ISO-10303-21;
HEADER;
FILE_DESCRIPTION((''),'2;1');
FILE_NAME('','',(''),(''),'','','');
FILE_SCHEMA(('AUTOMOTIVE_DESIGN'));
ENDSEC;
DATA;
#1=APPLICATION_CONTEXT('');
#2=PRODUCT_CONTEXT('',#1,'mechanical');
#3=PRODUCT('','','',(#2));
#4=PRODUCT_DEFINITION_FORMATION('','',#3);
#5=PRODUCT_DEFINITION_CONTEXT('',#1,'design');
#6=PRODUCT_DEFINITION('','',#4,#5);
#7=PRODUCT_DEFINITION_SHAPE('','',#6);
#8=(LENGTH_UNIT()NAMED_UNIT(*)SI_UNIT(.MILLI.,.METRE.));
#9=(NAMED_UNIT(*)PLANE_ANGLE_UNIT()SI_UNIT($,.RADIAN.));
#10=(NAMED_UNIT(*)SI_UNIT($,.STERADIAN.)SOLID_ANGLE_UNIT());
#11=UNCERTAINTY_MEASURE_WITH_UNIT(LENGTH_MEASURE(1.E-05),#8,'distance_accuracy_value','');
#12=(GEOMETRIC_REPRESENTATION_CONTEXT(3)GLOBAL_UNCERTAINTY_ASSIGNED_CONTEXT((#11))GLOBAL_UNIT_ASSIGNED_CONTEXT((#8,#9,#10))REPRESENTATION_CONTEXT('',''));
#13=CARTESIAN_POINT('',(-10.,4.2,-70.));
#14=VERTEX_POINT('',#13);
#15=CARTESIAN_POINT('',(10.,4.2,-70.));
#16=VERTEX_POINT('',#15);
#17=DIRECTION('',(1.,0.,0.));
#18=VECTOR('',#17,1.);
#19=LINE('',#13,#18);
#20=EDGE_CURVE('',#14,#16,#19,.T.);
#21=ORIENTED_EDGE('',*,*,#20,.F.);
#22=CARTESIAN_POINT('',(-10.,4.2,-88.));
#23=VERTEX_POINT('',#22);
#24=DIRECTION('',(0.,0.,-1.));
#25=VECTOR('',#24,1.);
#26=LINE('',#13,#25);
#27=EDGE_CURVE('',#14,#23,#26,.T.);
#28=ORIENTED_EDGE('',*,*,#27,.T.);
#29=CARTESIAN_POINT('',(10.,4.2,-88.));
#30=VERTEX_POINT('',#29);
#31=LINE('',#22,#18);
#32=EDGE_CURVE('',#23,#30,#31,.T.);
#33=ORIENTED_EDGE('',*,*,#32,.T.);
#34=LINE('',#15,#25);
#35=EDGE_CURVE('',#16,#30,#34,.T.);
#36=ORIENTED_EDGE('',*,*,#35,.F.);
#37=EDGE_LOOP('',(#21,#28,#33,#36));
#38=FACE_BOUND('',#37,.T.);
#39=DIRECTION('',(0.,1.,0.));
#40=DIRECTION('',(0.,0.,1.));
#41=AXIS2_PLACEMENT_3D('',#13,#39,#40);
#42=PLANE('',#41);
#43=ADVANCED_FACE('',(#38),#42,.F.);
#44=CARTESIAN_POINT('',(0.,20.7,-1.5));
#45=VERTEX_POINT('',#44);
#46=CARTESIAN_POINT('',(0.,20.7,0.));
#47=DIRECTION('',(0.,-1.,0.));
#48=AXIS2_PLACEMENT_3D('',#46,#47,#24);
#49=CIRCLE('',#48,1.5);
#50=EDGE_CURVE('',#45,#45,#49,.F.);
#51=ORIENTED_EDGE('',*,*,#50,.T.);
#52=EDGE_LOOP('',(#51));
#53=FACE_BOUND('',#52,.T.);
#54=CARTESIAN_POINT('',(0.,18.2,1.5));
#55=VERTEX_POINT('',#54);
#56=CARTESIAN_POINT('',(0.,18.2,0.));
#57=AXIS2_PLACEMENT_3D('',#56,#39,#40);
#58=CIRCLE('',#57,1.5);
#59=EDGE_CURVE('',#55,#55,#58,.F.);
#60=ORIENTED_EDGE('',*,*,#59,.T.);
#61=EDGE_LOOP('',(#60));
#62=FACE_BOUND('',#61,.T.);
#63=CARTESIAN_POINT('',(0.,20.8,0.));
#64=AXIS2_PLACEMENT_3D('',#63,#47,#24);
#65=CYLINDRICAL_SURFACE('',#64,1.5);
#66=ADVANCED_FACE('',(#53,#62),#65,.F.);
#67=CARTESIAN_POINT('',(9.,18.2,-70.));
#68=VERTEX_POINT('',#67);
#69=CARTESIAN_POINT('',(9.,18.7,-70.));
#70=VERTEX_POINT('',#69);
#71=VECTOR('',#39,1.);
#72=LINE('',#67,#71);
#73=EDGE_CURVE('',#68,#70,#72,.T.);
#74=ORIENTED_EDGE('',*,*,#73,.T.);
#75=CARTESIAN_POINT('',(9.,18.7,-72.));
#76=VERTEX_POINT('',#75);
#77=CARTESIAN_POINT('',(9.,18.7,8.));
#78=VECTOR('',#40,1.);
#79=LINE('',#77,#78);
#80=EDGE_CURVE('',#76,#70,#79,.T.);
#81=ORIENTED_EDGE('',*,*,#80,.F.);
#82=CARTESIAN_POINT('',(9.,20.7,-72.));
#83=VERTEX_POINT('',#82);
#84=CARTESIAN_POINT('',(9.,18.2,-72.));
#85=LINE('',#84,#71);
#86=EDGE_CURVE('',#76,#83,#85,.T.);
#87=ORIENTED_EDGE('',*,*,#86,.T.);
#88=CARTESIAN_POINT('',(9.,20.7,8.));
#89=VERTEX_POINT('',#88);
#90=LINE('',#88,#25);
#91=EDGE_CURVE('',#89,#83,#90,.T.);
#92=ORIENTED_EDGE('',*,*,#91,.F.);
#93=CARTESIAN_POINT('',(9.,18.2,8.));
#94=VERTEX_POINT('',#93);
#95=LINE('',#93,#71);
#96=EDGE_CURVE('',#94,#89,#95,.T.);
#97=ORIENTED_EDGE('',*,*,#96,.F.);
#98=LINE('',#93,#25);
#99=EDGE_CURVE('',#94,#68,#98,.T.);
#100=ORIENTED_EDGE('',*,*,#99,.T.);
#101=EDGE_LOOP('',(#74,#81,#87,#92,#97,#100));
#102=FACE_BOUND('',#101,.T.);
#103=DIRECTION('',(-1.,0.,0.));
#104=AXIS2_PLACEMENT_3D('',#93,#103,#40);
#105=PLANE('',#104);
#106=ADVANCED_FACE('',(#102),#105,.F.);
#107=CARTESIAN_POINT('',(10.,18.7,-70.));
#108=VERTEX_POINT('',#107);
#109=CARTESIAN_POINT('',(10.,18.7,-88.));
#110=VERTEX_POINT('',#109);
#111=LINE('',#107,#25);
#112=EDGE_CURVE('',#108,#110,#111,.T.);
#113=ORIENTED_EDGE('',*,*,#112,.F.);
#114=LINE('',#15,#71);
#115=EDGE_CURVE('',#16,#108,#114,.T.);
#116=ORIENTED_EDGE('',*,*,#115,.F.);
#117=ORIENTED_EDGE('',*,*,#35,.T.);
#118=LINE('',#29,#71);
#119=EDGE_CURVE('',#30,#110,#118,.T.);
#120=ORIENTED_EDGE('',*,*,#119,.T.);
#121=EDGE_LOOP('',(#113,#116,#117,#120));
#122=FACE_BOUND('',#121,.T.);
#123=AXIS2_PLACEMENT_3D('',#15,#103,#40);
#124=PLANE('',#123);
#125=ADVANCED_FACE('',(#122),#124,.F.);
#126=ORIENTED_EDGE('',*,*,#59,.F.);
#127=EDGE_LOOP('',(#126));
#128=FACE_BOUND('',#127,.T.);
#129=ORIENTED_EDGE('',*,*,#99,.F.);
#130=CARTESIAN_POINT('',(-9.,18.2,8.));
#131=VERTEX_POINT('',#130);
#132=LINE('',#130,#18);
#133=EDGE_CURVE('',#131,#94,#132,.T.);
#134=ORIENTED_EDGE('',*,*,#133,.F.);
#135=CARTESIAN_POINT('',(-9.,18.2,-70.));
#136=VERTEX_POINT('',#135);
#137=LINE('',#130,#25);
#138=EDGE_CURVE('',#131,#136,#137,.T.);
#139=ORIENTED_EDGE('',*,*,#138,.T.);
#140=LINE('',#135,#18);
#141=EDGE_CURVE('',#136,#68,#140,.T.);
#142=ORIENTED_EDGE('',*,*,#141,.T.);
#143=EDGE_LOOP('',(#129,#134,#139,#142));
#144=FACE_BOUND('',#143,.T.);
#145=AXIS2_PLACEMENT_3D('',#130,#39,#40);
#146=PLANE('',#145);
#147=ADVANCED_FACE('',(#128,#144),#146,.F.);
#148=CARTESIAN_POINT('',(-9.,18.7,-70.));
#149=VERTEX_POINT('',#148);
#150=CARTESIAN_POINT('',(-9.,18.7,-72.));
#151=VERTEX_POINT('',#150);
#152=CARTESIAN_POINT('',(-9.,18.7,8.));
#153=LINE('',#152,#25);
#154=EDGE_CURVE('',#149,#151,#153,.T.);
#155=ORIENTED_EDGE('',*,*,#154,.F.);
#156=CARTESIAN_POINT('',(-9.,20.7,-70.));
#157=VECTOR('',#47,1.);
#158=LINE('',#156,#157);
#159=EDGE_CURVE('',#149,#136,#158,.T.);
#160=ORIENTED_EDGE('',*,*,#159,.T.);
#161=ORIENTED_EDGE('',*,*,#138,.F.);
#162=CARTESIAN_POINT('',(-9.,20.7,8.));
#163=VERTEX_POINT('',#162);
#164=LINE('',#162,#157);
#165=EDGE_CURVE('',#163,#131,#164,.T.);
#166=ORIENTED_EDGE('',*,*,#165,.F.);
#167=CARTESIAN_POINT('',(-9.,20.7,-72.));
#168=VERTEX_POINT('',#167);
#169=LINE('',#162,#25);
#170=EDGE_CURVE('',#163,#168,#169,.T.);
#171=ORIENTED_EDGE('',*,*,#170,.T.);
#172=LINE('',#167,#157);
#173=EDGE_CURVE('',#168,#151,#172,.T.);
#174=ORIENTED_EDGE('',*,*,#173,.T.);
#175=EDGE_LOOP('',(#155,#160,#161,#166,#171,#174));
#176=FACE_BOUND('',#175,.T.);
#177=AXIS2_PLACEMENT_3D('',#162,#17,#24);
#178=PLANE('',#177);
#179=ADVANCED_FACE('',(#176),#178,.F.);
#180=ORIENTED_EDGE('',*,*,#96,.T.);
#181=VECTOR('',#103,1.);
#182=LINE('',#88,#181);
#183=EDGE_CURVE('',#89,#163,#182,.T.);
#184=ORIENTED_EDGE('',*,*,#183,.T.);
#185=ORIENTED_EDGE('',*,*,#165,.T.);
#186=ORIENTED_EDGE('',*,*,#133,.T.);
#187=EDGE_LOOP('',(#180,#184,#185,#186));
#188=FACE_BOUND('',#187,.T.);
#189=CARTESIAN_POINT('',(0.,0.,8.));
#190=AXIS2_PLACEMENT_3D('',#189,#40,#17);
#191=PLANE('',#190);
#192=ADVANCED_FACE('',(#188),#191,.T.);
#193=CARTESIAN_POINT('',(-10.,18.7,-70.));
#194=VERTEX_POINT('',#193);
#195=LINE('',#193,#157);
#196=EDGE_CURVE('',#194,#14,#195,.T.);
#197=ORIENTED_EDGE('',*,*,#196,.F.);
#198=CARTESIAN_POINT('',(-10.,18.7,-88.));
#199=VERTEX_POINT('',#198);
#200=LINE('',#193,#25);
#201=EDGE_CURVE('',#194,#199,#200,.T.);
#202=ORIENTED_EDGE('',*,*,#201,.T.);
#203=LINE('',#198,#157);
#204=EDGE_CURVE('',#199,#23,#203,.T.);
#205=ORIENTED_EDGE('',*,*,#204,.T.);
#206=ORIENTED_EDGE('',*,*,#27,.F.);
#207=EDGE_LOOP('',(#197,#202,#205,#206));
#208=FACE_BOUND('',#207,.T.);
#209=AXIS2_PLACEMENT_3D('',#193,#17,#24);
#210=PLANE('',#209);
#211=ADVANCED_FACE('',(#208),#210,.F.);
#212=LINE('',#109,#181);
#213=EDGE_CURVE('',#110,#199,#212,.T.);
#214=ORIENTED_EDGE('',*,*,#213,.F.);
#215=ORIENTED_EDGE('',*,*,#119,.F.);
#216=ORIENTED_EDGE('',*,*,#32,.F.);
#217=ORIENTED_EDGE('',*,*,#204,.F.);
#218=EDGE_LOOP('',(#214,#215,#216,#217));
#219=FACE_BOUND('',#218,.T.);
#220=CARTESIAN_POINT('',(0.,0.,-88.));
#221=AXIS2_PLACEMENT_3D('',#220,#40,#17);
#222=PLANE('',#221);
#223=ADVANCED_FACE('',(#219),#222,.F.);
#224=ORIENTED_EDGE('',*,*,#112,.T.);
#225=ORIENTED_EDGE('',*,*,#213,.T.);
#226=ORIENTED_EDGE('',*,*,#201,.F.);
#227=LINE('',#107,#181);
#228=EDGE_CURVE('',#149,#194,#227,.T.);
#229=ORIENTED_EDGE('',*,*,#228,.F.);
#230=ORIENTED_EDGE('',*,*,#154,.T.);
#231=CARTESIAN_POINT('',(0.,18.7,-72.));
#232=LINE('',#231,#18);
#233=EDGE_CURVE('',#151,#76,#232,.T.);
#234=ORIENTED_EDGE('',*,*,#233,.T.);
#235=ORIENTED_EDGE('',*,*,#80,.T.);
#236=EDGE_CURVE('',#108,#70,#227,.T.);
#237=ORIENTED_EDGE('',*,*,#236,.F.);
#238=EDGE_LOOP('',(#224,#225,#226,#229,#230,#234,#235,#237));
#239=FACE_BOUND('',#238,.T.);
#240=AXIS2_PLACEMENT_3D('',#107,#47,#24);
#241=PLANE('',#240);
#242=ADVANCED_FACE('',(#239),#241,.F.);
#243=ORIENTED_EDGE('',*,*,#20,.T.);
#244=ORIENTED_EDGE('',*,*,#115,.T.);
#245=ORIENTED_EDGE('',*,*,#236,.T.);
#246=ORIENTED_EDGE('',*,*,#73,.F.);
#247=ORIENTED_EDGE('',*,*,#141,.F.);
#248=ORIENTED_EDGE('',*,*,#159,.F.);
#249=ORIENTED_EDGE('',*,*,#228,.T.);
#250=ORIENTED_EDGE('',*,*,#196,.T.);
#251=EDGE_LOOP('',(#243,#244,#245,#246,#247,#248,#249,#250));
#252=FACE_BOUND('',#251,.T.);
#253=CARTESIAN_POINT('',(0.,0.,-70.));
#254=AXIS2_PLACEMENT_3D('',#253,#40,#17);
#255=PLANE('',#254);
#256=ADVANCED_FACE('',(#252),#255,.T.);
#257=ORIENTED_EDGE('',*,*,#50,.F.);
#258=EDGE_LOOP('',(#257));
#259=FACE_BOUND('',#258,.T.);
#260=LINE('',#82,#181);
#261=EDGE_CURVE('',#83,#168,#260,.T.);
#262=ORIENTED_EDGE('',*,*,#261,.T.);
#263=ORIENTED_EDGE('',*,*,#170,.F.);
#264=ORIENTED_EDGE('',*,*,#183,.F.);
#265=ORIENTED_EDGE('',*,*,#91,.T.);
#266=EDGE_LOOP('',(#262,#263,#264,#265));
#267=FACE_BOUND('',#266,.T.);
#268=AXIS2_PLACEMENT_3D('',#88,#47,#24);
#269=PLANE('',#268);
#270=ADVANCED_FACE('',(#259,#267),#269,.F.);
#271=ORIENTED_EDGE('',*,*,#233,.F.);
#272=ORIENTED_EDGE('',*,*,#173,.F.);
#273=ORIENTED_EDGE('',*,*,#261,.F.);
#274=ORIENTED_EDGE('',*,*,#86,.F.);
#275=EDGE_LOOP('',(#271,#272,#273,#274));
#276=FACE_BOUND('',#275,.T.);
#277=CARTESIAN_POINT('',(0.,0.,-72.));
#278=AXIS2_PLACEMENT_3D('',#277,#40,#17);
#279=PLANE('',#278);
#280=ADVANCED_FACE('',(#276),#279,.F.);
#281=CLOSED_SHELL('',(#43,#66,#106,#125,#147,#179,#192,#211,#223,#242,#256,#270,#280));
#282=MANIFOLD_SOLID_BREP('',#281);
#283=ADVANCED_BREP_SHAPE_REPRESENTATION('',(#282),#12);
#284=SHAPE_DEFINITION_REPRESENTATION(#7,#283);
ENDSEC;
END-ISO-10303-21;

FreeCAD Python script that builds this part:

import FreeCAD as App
import Part
import Sketcher


def add_polygon(sketch, points):
    """Adds a closed chain of lines whose ends are joined by coincident constraints."""
    first, n = sketch.GeometryCount, len(points)
    for a, b in zip(points, points[1:] + points[:1]):
        sketch.addGeometry(Part.LineSegment(App.Vector(*a, 0), App.Vector(*b, 0)), False)
    for i in range(n):
        sketch.addConstraint(Sketcher.Constraint("Coincident", first + i, 2, first + (i + 1) % n, 1))

doc = App.newDocument("Part")
body = doc.addObject("PartDesign::Body", "Body")

# Sketch on XY plane
sketch1 = body.newObject("Sketcher::SketchObject", "Sketch")
sketch1.AttachmentSupport = (doc.getObject("XY_Plane"), [""])
sketch1.MapMode = "FlatFace"
sketch1.AttachmentOffset = App.Placement(App.Vector(0, 0, -72), App.Rotation())
add_polygon(sketch1, [(-9, 20.7), (-9, 18.2), (9, 18.2), (9, 20.7)])  # lines 0-3
sketch1.addConstraint(Sketcher.Constraint("Vertical", 0))
sketch1.addConstraint(Sketcher.Constraint("Horizontal", 1))
sketch1.addConstraint(Sketcher.Constraint("Vertical", 2))
sketch1.addConstraint(Sketcher.Constraint("Horizontal", 3))
sketch1.addConstraint(Sketcher.Constraint("DistanceX", 1, 1, 1, 2, 18.0))
sketch1.addConstraint(Sketcher.Constraint("DistanceY", 0, 2, 0, 1, 2.5))
sketch1.addConstraint(Sketcher.Constraint("DistanceX", 0, 2, -1, 1, 9.0))
sketch1.addConstraint(Sketcher.Constraint("DistanceY", -1, 1, 0, 2, 18.2))
pad1 = body.newObject("PartDesign::Pad", "Pad")
pad1.Profile = sketch1
pad1.Length = 80

# Sketch on XY plane
sketch2 = body.newObject("Sketcher::SketchObject", "Sketch001")
sketch2.AttachmentSupport = (doc.getObject("XY_Plane"), [""])
sketch2.MapMode = "FlatFace"
sketch2.AttachmentOffset = App.Placement(App.Vector(0, 0, -88), App.Rotation())
add_polygon(sketch2, [(-10, 18.7), (-10, 4.2), (10, 4.2), (10, 18.7)])  # lines 0-3
sketch2.addConstraint(Sketcher.Constraint("Vertical", 0))
sketch2.addConstraint(Sketcher.Constraint("Horizontal", 1))
sketch2.addConstraint(Sketcher.Constraint("Vertical", 2))
sketch2.addConstraint(Sketcher.Constraint("Horizontal", 3))
sketch2.addConstraint(Sketcher.Constraint("DistanceX", 1, 1, 1, 2, 20.0))
sketch2.addConstraint(Sketcher.Constraint("DistanceY", 0, 2, 0, 1, 14.5))
sketch2.addConstraint(Sketcher.Constraint("DistanceX", 0, 2, -1, 1, 10.0))
sketch2.addConstraint(Sketcher.Constraint("DistanceY", -1, 1, 0, 2, 4.2))
pad2 = body.newObject("PartDesign::Pad", "Pad001")
pad2.Profile = sketch2
pad2.Length = 18

# Sketch on XZ plane
sketch3 = body.newObject("Sketcher::SketchObject", "Sketch002")
sketch3.AttachmentSupport = (doc.getObject("XZ_Plane"), [""])
sketch3.MapMode = "FlatFace"
sketch3.AttachmentOffset = App.Placement(App.Vector(0, 0, -18.1), App.Rotation())
sketch3.addGeometry(Part.Circle(App.Vector(0, 0, 0), App.Vector(0, 0, 1), 1.5), False)
sketch3.addConstraint(Sketcher.Constraint("Coincident", 0, 3, -1, 1))
sketch3.addConstraint(Sketcher.Constraint("Diameter", 0, 3.0))
pocket1 = body.newObject("PartDesign::Pocket", "Pocket")
pocket1.Profile = sketch3
pocket1.Length = 2.7

doc.recompute()
